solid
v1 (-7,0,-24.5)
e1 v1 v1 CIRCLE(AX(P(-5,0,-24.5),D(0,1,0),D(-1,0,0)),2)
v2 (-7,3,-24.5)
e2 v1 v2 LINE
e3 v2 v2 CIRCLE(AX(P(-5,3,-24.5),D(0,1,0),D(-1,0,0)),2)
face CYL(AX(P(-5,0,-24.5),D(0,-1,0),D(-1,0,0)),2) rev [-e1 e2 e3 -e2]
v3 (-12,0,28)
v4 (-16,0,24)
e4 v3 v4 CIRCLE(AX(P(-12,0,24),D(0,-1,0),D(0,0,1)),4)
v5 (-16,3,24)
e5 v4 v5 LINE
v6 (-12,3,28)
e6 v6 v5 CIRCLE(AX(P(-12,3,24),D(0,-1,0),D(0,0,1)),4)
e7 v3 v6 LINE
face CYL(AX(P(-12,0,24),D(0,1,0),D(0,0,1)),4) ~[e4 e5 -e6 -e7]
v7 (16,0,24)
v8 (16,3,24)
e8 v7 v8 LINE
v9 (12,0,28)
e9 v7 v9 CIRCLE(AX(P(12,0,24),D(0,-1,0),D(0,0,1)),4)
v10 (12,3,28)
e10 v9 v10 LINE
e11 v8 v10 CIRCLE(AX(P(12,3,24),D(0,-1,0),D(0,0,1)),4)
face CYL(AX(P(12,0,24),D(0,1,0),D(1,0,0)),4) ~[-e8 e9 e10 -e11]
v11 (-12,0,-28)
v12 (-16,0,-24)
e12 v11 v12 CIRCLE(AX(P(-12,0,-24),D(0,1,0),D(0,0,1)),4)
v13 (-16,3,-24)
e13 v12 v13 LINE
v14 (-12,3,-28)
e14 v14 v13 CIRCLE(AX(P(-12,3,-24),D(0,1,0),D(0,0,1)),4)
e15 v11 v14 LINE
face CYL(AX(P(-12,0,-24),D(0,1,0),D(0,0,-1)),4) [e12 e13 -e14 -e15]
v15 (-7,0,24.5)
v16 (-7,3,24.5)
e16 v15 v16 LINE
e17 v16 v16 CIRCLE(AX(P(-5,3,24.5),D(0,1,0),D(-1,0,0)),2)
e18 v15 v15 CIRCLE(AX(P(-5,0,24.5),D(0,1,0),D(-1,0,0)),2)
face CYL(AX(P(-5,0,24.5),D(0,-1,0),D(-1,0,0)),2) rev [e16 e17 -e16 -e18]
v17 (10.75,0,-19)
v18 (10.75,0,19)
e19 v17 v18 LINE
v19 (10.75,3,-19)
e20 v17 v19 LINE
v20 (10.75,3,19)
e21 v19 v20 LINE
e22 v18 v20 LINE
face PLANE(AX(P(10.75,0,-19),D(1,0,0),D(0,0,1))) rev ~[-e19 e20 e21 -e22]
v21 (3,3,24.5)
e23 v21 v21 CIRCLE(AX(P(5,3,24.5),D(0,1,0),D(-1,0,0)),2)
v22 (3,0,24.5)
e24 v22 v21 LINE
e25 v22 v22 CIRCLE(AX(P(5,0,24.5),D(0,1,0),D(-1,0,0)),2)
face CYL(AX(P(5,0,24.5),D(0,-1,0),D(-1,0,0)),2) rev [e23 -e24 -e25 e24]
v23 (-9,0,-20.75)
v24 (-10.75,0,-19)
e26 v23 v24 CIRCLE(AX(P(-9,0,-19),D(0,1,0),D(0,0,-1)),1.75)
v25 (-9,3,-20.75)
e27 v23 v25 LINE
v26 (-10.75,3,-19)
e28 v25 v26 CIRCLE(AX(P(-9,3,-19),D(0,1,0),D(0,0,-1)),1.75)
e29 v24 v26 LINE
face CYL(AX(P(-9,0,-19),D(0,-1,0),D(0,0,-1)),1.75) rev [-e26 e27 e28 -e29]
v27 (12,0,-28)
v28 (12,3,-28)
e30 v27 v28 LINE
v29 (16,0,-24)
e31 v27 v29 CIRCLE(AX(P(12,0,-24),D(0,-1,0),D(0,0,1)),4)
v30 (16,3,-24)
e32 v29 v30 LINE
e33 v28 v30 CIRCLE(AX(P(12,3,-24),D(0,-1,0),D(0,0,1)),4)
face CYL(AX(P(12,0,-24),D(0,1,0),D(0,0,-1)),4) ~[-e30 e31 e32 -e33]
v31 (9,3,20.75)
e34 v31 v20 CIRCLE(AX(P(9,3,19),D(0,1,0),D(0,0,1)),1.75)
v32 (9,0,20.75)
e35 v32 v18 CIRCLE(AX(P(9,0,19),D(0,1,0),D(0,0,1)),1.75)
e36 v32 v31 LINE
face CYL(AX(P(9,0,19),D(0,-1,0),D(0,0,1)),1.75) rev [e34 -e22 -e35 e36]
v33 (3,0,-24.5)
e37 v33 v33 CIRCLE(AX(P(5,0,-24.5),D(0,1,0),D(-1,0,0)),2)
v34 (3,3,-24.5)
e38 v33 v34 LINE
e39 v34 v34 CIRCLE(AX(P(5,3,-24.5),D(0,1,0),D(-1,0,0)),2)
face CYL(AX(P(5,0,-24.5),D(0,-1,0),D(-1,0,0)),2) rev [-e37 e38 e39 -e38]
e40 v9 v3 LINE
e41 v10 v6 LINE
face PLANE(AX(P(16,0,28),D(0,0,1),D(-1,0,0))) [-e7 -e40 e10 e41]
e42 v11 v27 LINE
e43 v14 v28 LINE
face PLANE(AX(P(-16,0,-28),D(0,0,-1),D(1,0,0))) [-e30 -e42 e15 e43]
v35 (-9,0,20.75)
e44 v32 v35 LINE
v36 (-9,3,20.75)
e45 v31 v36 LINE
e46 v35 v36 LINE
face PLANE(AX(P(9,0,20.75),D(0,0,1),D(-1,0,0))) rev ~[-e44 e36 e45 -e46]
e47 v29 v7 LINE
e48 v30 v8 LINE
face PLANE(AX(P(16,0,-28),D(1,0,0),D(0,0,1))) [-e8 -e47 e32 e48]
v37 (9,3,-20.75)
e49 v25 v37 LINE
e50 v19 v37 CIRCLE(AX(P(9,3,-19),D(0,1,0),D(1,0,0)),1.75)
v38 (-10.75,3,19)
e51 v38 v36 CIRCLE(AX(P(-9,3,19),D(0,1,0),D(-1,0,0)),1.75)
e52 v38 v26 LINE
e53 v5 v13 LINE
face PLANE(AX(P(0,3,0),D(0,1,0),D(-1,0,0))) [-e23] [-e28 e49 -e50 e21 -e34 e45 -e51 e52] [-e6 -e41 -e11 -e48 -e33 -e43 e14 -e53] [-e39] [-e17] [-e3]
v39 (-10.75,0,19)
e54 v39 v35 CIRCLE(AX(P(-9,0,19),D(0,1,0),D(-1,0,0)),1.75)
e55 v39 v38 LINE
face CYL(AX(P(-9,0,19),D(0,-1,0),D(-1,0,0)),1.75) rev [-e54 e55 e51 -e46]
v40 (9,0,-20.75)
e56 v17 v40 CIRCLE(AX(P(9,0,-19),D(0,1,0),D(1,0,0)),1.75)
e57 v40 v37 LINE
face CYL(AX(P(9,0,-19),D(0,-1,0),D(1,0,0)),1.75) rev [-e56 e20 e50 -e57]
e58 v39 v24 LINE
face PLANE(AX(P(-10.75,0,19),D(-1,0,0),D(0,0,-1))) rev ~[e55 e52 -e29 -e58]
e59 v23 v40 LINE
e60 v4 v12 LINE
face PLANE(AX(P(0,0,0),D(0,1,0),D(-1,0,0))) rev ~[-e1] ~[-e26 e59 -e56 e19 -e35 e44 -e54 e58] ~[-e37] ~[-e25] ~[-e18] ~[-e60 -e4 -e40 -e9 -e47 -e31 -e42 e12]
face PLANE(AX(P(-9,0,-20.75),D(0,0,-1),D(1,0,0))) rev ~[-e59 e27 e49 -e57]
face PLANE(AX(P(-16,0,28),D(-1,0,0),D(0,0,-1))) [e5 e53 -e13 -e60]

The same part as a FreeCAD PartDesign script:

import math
import FreeCAD as App
import Part
import Sketcher

V = App.Vector
Q = App.Units.Quantity


def edges_at(feature, points):
    """Names of the edges that pass closest to the given points."""
    edges = feature.Shape.Edges
    near = lambda p: min(range(len(edges)), key=lambda i: edges[i].distToShape(Part.Vertex(*p))[0])
    return sorted({f"Edge{near(p) + 1}" for p in points})


def add_polygon(sketch, points):
    """Adds a closed chain of lines whose ends are joined by coincident constraints."""
    first, n = sketch.GeometryCount, len(points)
    for a, b in zip(points, points[1:] + points[:1]):
        sketch.addGeometry(Part.LineSegment(App.Vector(*a, 0), App.Vector(*b, 0)), False)
    for i in range(n):
        sketch.addConstraint(Sketcher.Constraint("Coincident", first + i, 2, first + (i + 1) % n, 1))

doc = App.newDocument("Part")
body = doc.addObject("PartDesign::Body", "Body")

# Sketch on XZ plane
sketch1 = body.newObject("Sketcher::SketchObject", "Sketch")
sketch1.AttachmentSupport = (doc.getObject("XZ_Plane"), [""])
sketch1.MapMode = "FlatFace"
add_polygon(sketch1, [(16, -28), (-16, -28), (-16, 28), (16, 28)])  # lines 0-3
sketch1.addGeometry(Part.Circle(V(5, -24.5, 0), V(0, 0, 1), 2), False)  # 4
sketch1.addGeometry(Part.Circle(V(-5, -24.5, 0), V(0, 0, 1), 2), False)  # 5
sketch1.addGeometry(Part.Circle(V(5, 24.5, 0), V(0, 0, 1), 2), False)  # 6
sketch1.addGeometry(Part.ArcOfCircle(Part.Circle(V(-9, -19, 0), V(0, 0, 1), 1.8), math.radians(180), math.radians(270)), False)  # 7
sketch1.addGeometry(Part.LineSegment(V(-9, -20.8, 0), V(9, -20.8, 0)), False)  # 8
sketch1.addGeometry(Part.ArcOfCircle(Part.Circle(V(9, -19, 0), V(0, 0, 1), 1.8), math.radians(-90), math.radians(0)), False)  # 9
sketch1.addGeometry(Part.LineSegment(V(10.8, -19, 0), V(10.8, 19, 0)), False)  # 10
sketch1.addGeometry(Part.ArcOfCircle(Part.Circle(V(9, 19, 0), V(0, 0, 1), 1.8), math.radians(0), math.radians(90)), False)  # 11
sketch1.addGeometry(Part.LineSegment(V(9, 20.8, 0), V(-9, 20.8, 0)), False)  # 12
sketch1.addGeometry(Part.ArcOfCircle(Part.Circle(V(-9, 19, 0), V(0, 0, 1), 1.8), math.radians(90), math.radians(180)), False)  # 13
sketch1.addGeometry(Part.LineSegment(V(-10.8, 19, 0), V(-10.8, -19, 0)), False)  # 14
sketch1.addGeometry(Part.Circle(V(-5, 24.5, 0), V(0, 0, 1), 2), False)  # 15
sketch1.addConstraint([
    Sketcher.Constraint("Tangent", 7, 2, 8, 1),
    Sketcher.Constraint("Tangent", 8, 2, 9, 1),
    Sketcher.Constraint("Tangent", 9, 2, 10, 1),
    Sketcher.Constraint("Tangent", 10, 2, 11, 1),
    Sketcher.Constraint("Tangent", 11, 2, 12, 1),
    Sketcher.Constraint("Tangent", 12, 2, 13, 1),
    Sketcher.Constraint("Tangent", 13, 2, 14, 1),
    Sketcher.Constraint("Tangent", 14, 2, 7, 1),
    Sketcher.Constraint("Horizontal", 0),
    Sketcher.Constraint("Vertical", 1),
    Sketcher.Constraint("Horizontal", 2),
    Sketcher.Constraint("Vertical", 3),
    Sketcher.Constraint("Horizontal", 8),
    Sketcher.Constraint("Vertical", 10),
    Sketcher.Constraint("Horizontal", 12),
    Sketcher.Constraint("Vertical", 14),
    Sketcher.Constraint("Equal", 4, 5),
    Sketcher.Constraint("Equal", 5, 6),
    Sketcher.Constraint("Equal", 7, 9),
    Sketcher.Constraint("Equal", 9, 11),
    Sketcher.Constraint("Equal", 11, 13),
    Sketcher.Constraint("Equal", 6, 15),
    Sketcher.Constraint("Symmetric", 5, 3, 6, 3, -1, 1),
    Sketcher.Constraint("Symmetric", 7, 3, 11, 3, -1, 1),
    Sketcher.Constraint("Symmetric", 4, 3, 15, 3, -1, 1),
    Sketcher.Constraint("Symmetric", 0, 2, 2, 2, -1, 1),
    Sketcher.Constraint("Symmetric", 4, 3, 5, 3, -2),
    Sketcher.Constraint("Diameter", 4, Q("4 mm")),
    Sketcher.Constraint("DistanceX", 0, 2, 0, 1, Q("32 mm")),
    Sketcher.Constraint("DistanceY", 1, 1, 1, 2, Q("56 mm")),
    Sketcher.Constraint("Radius", 7, Q("1.75 mm")),
    Sketcher.Constraint("DistanceX", -1, 1, 4, 3, Q("5 mm")),
    Sketcher.Constraint("DistanceX", 7, 3, 5, 3, Q("4 mm")),
    Sketcher.Constraint("DistanceY", 4, 3, -1, 1, Q("24.5 mm")),
    Sketcher.Constraint("DistanceY", 10, 1, 10, 2, Q("38 mm")),
])
pad1 = body.newObject("PartDesign::Pad", "Pad")
pad1.Profile = sketch1
pad1.Length = 3
pad1.Reversed = True
doc.recompute()

fillet = body.newObject("PartDesign::Fillet", "Fillet")
fillet.Base = (pad1, edges_at(pad1, [
    (16, 1.5, 28),
    (-16, 1.5, 28),
    (16, 1.5, -28),
    (-16, 1.5, -28),
]))
fillet.Radius = 4

doc.recompute()
